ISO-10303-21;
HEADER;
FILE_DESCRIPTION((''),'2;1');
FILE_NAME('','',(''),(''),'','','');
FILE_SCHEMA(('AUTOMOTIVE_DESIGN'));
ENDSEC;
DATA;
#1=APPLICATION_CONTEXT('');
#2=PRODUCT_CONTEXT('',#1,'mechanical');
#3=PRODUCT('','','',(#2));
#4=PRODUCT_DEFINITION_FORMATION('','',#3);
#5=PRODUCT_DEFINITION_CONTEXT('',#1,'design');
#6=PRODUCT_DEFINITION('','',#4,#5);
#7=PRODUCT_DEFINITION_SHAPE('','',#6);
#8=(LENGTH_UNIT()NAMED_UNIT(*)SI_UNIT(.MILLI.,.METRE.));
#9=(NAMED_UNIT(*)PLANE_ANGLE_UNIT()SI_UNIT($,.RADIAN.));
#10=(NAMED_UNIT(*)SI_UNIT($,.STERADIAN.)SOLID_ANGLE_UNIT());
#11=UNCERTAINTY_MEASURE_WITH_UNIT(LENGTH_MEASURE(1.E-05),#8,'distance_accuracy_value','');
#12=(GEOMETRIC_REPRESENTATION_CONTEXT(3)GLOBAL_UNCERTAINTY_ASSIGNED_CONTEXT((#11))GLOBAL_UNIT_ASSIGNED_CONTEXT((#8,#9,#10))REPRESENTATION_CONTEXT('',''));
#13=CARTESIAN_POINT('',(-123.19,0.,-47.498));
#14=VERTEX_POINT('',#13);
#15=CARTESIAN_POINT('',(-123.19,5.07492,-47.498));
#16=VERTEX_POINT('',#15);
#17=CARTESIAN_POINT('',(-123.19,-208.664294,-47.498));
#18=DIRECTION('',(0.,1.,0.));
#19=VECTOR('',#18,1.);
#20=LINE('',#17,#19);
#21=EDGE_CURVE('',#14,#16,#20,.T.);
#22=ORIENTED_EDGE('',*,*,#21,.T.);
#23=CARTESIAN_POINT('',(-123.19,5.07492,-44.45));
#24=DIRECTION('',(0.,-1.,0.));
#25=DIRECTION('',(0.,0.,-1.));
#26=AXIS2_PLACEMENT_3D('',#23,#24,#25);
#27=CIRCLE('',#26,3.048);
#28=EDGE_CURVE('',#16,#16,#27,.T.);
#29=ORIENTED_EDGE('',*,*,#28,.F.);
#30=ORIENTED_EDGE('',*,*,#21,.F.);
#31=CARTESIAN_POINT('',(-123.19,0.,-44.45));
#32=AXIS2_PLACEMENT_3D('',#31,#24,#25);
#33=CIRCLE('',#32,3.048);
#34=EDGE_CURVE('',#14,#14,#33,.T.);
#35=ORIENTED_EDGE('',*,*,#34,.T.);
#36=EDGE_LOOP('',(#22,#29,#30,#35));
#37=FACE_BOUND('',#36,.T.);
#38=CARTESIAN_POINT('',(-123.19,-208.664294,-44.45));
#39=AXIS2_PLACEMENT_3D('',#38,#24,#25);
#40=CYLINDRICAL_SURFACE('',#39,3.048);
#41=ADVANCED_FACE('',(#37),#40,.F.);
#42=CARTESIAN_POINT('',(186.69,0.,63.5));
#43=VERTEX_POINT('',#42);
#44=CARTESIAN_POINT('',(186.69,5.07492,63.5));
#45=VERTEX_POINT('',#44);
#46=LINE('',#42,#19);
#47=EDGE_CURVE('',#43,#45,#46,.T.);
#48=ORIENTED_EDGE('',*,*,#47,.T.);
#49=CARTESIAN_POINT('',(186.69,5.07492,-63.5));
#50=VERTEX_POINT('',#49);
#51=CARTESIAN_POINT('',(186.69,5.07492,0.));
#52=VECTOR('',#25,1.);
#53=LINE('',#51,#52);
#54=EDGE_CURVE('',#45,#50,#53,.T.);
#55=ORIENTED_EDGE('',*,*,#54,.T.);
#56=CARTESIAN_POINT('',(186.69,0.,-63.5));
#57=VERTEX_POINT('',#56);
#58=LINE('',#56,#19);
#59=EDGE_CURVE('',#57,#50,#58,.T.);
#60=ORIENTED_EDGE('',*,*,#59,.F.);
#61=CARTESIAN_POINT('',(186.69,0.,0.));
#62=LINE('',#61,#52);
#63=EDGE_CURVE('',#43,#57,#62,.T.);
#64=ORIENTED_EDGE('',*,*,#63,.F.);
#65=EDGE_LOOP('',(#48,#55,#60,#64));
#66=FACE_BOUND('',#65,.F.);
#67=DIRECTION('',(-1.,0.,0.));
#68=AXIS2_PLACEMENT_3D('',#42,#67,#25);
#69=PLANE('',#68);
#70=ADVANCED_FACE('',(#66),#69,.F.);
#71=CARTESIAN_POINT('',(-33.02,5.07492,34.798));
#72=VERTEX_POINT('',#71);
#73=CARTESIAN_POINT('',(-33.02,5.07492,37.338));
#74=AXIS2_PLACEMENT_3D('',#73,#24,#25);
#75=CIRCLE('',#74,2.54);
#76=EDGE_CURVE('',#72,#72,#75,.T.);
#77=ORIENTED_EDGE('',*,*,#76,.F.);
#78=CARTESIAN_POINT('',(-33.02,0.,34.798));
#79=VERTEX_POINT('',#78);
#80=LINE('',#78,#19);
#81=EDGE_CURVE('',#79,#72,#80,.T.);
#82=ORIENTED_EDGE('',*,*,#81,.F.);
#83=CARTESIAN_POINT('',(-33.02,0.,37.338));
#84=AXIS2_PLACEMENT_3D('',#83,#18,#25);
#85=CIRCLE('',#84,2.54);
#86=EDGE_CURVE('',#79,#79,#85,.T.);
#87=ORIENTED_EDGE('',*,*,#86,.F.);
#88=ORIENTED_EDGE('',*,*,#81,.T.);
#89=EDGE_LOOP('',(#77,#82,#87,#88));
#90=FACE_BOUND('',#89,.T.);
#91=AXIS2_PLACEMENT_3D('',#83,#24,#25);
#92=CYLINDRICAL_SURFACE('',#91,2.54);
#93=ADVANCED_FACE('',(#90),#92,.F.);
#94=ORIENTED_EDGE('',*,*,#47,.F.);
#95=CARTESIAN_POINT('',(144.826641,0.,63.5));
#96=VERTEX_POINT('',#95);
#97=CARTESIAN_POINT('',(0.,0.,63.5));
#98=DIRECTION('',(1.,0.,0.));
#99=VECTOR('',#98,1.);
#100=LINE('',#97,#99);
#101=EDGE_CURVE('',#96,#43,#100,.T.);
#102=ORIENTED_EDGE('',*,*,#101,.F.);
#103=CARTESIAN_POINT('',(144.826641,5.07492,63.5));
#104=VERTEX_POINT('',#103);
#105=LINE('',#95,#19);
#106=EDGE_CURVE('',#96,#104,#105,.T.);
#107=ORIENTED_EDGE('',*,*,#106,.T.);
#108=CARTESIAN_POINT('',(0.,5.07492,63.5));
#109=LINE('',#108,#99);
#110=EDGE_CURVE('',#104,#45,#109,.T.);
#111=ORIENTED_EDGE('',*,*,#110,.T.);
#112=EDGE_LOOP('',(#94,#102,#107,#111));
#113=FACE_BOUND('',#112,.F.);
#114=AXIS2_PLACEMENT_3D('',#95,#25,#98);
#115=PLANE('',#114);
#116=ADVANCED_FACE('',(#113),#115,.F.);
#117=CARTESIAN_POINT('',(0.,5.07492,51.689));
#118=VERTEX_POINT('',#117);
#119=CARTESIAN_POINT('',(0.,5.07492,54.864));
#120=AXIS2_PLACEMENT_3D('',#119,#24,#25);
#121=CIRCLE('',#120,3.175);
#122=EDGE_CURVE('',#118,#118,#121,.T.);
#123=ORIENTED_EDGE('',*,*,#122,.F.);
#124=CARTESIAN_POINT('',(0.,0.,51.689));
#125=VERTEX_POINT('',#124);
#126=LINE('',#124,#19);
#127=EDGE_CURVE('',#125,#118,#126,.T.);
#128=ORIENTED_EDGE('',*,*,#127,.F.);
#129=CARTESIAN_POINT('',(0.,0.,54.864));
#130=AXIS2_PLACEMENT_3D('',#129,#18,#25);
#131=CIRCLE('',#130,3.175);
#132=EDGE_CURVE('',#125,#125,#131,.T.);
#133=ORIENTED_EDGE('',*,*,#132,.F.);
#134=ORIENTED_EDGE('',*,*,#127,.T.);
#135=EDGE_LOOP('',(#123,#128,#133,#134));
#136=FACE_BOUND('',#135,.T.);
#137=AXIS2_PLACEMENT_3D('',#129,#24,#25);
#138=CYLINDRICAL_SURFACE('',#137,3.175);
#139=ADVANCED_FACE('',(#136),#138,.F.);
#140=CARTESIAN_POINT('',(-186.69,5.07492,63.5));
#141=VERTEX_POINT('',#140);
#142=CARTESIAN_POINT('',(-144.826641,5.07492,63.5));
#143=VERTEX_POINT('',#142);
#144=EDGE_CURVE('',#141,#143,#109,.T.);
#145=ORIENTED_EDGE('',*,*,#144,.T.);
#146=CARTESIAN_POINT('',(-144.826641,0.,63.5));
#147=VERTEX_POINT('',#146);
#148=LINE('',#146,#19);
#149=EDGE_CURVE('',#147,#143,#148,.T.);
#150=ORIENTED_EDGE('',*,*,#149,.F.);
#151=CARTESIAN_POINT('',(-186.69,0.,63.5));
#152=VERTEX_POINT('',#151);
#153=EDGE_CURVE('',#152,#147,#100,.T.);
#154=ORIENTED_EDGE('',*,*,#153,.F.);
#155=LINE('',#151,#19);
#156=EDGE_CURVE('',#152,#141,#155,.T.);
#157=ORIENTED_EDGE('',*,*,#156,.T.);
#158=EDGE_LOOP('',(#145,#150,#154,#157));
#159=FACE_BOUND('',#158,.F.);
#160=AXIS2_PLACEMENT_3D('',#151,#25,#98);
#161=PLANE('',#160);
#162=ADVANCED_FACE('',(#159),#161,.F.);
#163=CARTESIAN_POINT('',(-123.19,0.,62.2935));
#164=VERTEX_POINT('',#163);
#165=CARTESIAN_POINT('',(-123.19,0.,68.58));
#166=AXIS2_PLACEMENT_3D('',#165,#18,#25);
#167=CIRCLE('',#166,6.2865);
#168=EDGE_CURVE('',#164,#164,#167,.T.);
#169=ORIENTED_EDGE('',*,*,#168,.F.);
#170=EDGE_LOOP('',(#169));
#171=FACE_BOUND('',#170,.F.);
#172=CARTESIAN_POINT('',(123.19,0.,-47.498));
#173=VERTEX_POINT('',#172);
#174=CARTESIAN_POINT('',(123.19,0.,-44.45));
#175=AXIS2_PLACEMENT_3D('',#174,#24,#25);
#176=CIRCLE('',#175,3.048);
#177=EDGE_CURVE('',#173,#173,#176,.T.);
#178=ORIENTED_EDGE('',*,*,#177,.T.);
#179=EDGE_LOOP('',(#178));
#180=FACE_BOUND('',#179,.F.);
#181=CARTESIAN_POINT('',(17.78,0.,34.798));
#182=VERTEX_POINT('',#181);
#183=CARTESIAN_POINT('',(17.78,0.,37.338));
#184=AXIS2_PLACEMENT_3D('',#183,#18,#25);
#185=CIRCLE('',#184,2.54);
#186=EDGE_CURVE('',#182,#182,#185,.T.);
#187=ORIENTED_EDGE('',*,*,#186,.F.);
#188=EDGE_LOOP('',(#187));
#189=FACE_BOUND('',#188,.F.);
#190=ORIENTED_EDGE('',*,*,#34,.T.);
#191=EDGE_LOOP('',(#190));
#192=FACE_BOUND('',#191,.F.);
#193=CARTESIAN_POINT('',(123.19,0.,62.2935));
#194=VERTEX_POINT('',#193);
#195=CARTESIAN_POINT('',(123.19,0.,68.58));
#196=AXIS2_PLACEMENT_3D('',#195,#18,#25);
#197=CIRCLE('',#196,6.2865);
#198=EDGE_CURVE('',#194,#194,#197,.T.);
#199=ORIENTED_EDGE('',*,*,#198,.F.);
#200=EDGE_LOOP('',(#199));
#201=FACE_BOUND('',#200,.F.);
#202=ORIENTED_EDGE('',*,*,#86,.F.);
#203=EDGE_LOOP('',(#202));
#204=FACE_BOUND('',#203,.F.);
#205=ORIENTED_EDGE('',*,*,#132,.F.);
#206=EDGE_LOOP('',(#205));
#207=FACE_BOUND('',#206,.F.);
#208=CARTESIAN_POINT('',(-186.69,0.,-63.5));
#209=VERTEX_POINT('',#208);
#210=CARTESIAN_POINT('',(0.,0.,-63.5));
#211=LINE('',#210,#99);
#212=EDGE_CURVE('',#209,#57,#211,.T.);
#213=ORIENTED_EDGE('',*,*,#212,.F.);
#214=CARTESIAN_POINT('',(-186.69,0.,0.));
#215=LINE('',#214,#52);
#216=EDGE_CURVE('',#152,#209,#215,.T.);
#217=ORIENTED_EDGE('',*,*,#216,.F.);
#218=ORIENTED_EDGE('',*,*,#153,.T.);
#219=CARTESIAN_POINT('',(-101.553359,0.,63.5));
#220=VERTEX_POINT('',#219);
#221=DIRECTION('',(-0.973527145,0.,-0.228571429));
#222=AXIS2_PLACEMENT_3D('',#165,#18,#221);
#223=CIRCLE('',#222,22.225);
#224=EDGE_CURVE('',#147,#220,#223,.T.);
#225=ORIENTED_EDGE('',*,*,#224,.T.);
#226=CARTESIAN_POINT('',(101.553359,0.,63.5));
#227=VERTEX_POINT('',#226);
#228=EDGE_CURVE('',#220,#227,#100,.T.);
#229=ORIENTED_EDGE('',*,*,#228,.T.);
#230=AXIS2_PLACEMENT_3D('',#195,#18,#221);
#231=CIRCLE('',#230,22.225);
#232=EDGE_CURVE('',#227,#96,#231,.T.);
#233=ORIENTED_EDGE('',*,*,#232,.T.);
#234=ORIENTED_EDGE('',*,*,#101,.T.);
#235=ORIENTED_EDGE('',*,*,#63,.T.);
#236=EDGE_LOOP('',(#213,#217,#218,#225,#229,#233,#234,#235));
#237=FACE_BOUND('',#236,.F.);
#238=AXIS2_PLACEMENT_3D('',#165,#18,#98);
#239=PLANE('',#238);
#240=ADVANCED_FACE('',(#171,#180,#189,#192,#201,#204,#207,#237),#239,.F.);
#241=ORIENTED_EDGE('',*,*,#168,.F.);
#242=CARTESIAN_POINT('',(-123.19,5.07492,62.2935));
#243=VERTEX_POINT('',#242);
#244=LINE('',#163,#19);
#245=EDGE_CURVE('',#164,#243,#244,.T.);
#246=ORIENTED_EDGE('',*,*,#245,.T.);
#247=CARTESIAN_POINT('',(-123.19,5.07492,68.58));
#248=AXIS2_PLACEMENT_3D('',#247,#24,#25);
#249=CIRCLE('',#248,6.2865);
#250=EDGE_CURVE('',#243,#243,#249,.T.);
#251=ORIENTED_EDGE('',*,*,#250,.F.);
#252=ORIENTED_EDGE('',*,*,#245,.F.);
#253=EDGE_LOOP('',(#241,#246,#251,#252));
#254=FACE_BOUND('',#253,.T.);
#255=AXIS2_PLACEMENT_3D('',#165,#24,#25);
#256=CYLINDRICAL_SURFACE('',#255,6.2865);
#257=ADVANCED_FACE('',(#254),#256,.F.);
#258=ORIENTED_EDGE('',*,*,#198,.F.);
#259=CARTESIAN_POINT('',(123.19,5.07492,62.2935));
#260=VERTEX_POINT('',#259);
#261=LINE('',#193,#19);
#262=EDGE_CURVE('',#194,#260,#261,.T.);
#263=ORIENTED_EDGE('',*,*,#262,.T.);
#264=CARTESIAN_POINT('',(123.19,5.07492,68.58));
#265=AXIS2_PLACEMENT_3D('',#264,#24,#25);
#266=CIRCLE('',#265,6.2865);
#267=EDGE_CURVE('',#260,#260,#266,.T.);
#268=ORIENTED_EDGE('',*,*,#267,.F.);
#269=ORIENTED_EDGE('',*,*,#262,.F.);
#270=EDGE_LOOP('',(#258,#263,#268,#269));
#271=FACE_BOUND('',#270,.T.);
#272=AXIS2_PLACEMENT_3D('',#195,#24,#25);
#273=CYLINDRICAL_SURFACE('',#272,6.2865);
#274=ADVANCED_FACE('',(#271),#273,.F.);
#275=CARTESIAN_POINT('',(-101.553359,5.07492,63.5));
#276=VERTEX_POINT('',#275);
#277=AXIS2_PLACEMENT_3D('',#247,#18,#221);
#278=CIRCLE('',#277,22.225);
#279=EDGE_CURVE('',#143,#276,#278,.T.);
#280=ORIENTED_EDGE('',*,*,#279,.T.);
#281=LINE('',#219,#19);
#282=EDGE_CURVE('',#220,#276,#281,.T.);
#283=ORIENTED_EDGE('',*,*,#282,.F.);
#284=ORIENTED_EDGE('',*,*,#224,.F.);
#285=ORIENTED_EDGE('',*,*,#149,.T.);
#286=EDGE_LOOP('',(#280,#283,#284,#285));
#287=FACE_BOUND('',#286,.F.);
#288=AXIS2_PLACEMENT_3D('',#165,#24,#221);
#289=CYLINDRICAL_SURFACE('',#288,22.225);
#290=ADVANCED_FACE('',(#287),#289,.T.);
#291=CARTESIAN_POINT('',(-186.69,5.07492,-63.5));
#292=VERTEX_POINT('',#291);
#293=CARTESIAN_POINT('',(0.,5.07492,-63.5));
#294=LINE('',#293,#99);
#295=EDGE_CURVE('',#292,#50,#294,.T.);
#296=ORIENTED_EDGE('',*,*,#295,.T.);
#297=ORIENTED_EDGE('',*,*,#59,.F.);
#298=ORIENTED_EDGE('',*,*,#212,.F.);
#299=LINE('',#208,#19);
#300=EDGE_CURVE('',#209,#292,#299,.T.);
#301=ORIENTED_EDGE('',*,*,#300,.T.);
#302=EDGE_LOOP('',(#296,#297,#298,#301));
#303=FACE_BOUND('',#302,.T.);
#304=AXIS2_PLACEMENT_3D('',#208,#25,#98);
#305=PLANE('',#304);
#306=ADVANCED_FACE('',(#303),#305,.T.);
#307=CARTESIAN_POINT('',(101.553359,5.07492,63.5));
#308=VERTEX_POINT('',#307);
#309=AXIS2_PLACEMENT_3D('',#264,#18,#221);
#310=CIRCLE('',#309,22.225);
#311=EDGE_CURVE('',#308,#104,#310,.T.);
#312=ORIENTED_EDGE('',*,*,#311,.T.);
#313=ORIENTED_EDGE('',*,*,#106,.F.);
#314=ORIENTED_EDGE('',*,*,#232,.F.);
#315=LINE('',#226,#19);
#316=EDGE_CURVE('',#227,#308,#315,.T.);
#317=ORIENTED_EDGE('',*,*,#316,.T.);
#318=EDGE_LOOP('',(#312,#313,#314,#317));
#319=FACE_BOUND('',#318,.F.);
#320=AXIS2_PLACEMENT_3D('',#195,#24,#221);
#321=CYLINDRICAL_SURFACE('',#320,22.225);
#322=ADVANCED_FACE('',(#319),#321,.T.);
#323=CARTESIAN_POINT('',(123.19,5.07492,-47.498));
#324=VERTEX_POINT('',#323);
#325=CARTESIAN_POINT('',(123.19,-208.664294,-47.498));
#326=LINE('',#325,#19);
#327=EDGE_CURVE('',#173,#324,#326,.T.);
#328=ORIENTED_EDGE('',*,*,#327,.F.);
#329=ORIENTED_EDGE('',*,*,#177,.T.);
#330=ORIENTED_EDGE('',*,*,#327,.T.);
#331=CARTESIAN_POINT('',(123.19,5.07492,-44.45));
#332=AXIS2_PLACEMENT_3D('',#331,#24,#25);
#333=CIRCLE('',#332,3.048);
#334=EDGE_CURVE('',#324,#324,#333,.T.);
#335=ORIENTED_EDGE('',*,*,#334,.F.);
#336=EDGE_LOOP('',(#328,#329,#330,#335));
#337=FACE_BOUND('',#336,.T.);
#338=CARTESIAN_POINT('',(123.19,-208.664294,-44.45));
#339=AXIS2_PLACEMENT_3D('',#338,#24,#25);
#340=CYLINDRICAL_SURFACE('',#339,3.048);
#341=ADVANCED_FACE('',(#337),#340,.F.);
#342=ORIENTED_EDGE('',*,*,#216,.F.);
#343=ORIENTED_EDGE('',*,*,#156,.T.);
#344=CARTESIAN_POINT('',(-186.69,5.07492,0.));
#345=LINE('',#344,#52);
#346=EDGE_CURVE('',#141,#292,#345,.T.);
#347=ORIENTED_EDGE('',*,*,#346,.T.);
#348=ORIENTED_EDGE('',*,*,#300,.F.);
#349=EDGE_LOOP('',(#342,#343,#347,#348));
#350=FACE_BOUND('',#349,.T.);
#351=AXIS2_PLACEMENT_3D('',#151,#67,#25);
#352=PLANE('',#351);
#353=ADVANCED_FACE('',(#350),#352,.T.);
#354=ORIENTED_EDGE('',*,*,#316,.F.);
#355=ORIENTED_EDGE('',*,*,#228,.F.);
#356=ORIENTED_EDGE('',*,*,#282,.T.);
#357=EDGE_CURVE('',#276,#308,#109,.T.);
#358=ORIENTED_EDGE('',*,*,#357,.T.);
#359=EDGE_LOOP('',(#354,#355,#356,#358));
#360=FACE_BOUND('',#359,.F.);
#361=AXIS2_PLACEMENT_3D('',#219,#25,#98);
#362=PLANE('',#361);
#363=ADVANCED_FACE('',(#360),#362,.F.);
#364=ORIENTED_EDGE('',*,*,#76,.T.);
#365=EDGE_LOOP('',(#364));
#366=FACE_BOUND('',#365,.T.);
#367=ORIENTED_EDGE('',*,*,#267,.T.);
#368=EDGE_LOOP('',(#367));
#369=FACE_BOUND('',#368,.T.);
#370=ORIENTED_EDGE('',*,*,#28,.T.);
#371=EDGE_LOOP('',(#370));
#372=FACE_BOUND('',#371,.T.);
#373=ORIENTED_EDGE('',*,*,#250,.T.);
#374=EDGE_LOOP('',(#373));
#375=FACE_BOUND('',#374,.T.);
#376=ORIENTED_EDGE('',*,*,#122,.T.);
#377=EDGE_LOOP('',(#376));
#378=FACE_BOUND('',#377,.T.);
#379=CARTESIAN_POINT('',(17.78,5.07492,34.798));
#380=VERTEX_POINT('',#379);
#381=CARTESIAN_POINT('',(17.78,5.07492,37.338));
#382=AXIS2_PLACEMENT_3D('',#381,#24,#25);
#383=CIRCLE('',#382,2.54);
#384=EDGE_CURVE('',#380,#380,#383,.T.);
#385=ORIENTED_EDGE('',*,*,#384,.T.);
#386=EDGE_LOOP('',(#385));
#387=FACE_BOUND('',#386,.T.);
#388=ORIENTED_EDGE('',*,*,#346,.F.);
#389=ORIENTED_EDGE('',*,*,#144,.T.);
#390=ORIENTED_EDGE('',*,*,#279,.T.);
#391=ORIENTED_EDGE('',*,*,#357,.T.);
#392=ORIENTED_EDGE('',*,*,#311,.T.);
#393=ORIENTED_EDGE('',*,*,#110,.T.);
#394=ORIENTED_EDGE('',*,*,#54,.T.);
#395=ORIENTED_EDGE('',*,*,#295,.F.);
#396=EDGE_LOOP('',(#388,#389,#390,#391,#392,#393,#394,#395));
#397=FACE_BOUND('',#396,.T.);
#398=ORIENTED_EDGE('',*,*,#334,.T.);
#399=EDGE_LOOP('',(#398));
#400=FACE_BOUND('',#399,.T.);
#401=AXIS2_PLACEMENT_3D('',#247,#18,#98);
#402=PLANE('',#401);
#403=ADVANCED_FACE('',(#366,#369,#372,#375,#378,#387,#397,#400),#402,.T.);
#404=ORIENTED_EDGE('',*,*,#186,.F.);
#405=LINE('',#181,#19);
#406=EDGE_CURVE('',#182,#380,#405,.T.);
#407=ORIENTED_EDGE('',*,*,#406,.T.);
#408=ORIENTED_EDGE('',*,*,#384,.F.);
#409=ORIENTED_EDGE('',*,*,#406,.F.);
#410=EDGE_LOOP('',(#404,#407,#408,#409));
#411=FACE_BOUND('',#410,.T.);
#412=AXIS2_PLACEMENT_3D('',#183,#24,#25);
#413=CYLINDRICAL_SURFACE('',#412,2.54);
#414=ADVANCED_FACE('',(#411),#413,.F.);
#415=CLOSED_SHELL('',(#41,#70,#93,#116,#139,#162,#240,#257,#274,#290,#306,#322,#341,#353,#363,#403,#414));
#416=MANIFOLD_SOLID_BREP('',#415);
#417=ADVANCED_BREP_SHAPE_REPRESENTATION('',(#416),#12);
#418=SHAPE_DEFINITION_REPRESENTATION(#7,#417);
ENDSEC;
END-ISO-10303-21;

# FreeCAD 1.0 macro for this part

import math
import FreeCAD as App
import Part
import Sketcher

V = App.Vector
Q = App.Units.Quantity

doc = App.newDocument("Part")
body = doc.addObject("PartDesign::Body", "Body")

# Sketch on XZ plane
sketch1 = body.newObject("Sketcher::SketchObject", "Sketch")
sketch1.AttachmentSupport = (doc.getObject("XZ_Plane"), [""])
sketch1.MapMode = "FlatFace"
sketch1.addGeometry([
    Part.ArcOfCircle(Part.Circle(V(-123, 69, 0), V(0, 0, 1), 22), math.radians(-13), math.radians(193)),  # 0
    Part.LineSegment(V(-102, 64, 0), V(102, 64, 0)),  # 1
    Part.ArcOfCircle(Part.Circle(V(123, 69, 0), V(0, 0, 1), 22), math.radians(-13), math.radians(193)),  # 2
    Part.LineSegment(V(145, 64, 0), V(187, 64, 0)),  # 3
    Part.LineSegment(V(187, 64, 0), V(187, -64, 0)),  # 4
    Part.LineSegment(V(187, -64, 0), V(-187, -64, 0)),  # 5
    Part.LineSegment(V(-187, -64, 0), V(-187, 64, 0)),  # 6
    Part.LineSegment(V(-187, 64, 0), V(-145, 64, 0)),  # 7
], False)
sketch1.addConstraint([
    Sketcher.Constraint("Coincident", 0, 1, 1, 1),
    Sketcher.Constraint("Coincident", 1, 2, 2, 2),
    Sketcher.Constraint("Coincident", 2, 1, 3, 1),
    Sketcher.Constraint("Coincident", 3, 2, 4, 1),
    Sketcher.Constraint("Coincident", 4, 2, 5, 1),
    Sketcher.Constraint("Coincident", 5, 2, 6, 1),
    Sketcher.Constraint("Coincident", 6, 2, 7, 1),
    Sketcher.Constraint("Coincident", 7, 2, 0, 2),
    Sketcher.Constraint("Horizontal", 1),
    Sketcher.Constraint("Horizontal", 3),
    Sketcher.Constraint("Vertical", 4),
    Sketcher.Constraint("Horizontal", 5),
    Sketcher.Constraint("Vertical", 6),
    Sketcher.Constraint("Horizontal", 7),
    Sketcher.Constraint("Equal", 0, 2),
    Sketcher.Constraint("Symmetric", 3, 2, 5, 2, -1, 1),
    Sketcher.Constraint("Symmetric", 0, 3, 2, 3, -2),
    Sketcher.Constraint("Horizontal", 1, 2, 2, 1),
    Sketcher.Constraint("Horizontal", 3, 2, 6, 2),
    Sketcher.Constraint("DistanceY", 4, 2, 4, 1, Q("5 in")),
    Sketcher.Constraint("DistanceX", 5, 2, 5, 1, Q("14.7 in")),
    Sketcher.Constraint("Radius", 0, Q("0.875 in")),
    Sketcher.Constraint("DistanceY", -1, 1, 0, 3, Q("2.7 in")),
    Sketcher.Constraint("DistanceX", 0, 3, 2, 3, Q("9.7 in")),
])
pad1 = body.newObject("PartDesign::Pad", "Pad")
pad1.Profile = sketch1
pad1.Length = Q("0.1998 in")
pad1.Reversed = True

# Sketch on XZ plane
sketch2 = body.newObject("Sketcher::SketchObject", "Sketch001")
sketch2.AttachmentSupport = (doc.getObject("XZ_Plane"), [""])
sketch2.MapMode = "FlatFace"
sketch2.addGeometry([
    Part.Circle(V(-123, 69, 0), V(0, 0, 1), 6),
    Part.Circle(V(123, 69, 0), V(0, 0, 1), 6),
], False)
sketch2.addConstraint([
    Sketcher.Constraint("Equal", 0, 1),
    Sketcher.Constraint("Symmetric", 0, 3, 1, 3, -2),
    Sketcher.Constraint("Diameter", 0, Q("0.495 in")),
    Sketcher.Constraint("DistanceY", -1, 1, 0, 3, Q("2.7 in")),
    Sketcher.Constraint("DistanceX", 0, 3, 1, 3, Q("9.7 in")),
])
pocket1 = body.newObject("PartDesign::Pocket", "Pocket")
pocket1.Profile = sketch2
pocket1.Type = "ThroughAll"

# Sketch on XZ plane
sketch3 = body.newObject("Sketcher::SketchObject", "Sketch002")
sketch3.AttachmentSupport = (doc.getObject("XZ_Plane"), [""])
sketch3.MapMode = "FlatFace"
sketch3.addGeometry([
    Part.Circle(V(-123.2, -44.5, 0), V(0, 0, 1), 3),
    Part.Circle(V(123.2, -44.5, 0), V(0, 0, 1), 3),
], False)
sketch3.addConstraint([
    Sketcher.Constraint("Equal", 0, 1),
    Sketcher.Constraint("Symmetric", 0, 3, 1, 3, -2),
    Sketcher.Constraint("Diameter", 0, Q("0.24 in")),
    Sketcher.Constraint("DistanceX", 0, 3, 1, 3, Q("9.7 in")),
    Sketcher.Constraint("DistanceY", 0, 3, -1, 1, Q("1.75 in")),
])
pocket2 = body.newObject("PartDesign::Pocket", "Pocket001")
pocket2.Profile = sketch3
pocket2.Type = "ThroughAll"
pocket2.Midplane = True

# Sketch on XZ plane
sketch4 = body.newObject("Sketcher::SketchObject", "Sketch003")
sketch4.AttachmentSupport = (doc.getObject("XZ_Plane"), [""])
sketch4.MapMode = "FlatFace"
sketch4.addGeometry([
    Part.Circle(V(-33, 37.3, 0), V(0, 0, 1), 2.5),
    Part.Circle(V(17.8, 37.3, 0), V(0, 0, 1), 2.5),
    Part.Circle(V(0, 54.9, 0), V(0, 0, 1), 3.2),
], False)
sketch4.addConstraint([
    Sketcher.Constraint("Equal", 0, 1),
    Sketcher.Constraint("PointOnObject", 2, 3, -2),
    Sketcher.Constraint("Horizontal", 0, 3, 1, 3),
    Sketcher.Constraint("Diameter", 0, Q("0.2 in")),
    Sketcher.Constraint("Diameter", 2, Q("0.25 in")),
    Sketcher.Constraint("DistanceX", 0, 3, 1, 3, Q("2 in")),
    Sketcher.Constraint("DistanceX", 0, 3, -1, 1, Q("1.3 in")),
    Sketcher.Constraint("DistanceY", -1, 1, 0, 3, Q("1.47 in")),
    Sketcher.Constraint("DistanceY", -1, 1, 2, 3, Q("2.16 in")),
])
pocket3 = body.newObject("PartDesign::Pocket", "Pocket002")
pocket3.Profile = sketch4
pocket3.Type = "ThroughAll"

doc.recompute()
